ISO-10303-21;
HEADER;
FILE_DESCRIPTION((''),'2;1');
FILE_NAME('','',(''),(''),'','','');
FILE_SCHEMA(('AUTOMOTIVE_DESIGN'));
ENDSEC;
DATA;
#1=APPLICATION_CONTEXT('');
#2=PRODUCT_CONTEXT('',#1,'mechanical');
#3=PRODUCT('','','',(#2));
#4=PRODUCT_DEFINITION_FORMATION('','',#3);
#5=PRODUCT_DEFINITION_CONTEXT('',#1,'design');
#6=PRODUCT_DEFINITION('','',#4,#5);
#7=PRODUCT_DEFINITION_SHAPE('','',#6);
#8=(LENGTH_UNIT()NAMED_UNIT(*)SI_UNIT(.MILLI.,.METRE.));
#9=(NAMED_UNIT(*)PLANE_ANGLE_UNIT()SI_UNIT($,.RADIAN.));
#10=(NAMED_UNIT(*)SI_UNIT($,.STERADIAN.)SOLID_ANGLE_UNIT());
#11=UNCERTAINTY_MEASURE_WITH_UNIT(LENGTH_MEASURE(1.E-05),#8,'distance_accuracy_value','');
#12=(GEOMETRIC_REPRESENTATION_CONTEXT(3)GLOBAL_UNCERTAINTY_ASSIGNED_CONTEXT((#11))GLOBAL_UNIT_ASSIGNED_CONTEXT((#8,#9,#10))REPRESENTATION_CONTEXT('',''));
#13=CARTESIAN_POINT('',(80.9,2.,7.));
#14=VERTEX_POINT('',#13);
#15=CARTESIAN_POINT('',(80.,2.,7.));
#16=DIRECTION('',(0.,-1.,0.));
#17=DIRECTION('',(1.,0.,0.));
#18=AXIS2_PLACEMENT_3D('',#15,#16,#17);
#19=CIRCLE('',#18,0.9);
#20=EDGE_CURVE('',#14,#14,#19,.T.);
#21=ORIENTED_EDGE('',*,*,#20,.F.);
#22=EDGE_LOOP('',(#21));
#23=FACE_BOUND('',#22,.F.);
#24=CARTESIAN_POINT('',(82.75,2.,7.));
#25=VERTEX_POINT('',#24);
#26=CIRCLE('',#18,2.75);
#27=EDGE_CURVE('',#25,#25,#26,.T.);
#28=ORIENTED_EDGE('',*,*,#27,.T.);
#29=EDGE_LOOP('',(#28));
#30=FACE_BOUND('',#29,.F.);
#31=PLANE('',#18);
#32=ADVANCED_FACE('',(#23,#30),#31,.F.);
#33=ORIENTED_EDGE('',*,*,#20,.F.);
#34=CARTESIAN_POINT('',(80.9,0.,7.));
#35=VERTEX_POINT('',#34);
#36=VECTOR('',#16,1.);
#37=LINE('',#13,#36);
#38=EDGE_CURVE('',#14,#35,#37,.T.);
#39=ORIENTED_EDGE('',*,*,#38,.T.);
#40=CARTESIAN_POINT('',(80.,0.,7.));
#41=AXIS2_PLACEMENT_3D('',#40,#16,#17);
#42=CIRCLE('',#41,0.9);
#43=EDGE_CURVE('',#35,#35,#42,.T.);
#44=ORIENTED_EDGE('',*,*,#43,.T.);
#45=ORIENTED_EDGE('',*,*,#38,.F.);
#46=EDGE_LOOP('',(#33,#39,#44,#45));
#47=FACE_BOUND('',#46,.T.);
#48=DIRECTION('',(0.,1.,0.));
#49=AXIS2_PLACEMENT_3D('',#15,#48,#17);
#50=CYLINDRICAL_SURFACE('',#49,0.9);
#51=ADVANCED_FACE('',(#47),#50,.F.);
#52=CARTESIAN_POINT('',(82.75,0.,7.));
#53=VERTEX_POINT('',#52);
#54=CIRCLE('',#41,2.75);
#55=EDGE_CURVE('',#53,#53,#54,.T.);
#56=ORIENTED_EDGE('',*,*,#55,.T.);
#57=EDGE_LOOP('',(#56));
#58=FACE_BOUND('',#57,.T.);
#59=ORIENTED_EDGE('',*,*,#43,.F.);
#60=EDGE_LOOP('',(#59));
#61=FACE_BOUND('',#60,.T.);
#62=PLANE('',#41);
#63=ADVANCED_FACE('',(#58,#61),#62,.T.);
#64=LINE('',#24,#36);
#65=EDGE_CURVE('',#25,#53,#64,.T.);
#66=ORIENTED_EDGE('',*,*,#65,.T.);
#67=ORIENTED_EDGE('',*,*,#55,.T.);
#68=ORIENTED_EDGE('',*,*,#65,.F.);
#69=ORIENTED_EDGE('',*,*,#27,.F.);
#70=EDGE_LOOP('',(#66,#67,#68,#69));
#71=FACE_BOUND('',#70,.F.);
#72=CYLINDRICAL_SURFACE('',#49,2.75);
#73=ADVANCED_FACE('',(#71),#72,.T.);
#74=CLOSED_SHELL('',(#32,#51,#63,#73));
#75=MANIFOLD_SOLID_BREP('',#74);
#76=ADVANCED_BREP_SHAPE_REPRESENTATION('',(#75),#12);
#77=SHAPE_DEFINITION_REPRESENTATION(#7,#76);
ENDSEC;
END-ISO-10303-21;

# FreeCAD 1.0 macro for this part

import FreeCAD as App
import Part
import Sketcher
from FreeCAD import Vector

doc = App.newDocument("Part")
body = doc.addObject("PartDesign::Body", "Body")

# Sketch on XY plane
sketch1 = doc.addObject("Sketcher::SketchObject", "Sketch")
body.addObject(sketch1)
sketch1.AttachmentSupport = (doc.XY_Plane, [""])
sketch1.MapMode = "FlatFace"
sketch1.addGeometry(Part.Circle(Vector(0, 0, 0), Vector(0, 0, 1), 0.9), False)
sketch1.addConstraint(Sketcher.Constraint("Coincident", 0, 3, -1, 1))
sketch1.addConstraint(Sketcher.Constraint("Diameter", 0, 1.8))
pad1 = doc.addObject("PartDesign::Pad", "Pad")
body.addObject(pad1)
pad1.Profile = sketch1
pad1.Length = 2
body2 = doc.addObject("PartDesign::Body", "Body001")

# Sketch on XY plane
sketch2 = doc.addObject("Sketcher::SketchObject", "Sketch001")
body2.addObject(sketch2)
sketch2.AttachmentSupport = (doc.getObject("XY_Plane001"), [""])
sketch2.MapMode = "FlatFace"
sketch2.addGeometry(Part.Circle(Vector(0, 0, 0), Vector(0, 0, 1), 2.75), False)
sketch2.addConstraint(Sketcher.Constraint("Coincident", 0, 3, -1, 1))
sketch2.addConstraint(Sketcher.Constraint("Diameter", 0, 5.5))
pad2 = doc.addObject("PartDesign::Pad", "Pad001")
body2.addObject(pad2)
pad2.Profile = sketch2
pad2.Length = 2
doc.recompute()

boolean = doc.addObject("PartDesign::Boolean", "Boolean")
body2.addObject(boolean)
boolean.Type = "Cut"
boolean.addObjects([body])
body3 = doc.addObject("PartDesign::Body", "Body002")
doc.recompute()

body2.Placement = App.Placement(Vector(80, 2, 7), App.Rotation(Vector(1, 0, 0), 90))
boolean2 = doc.addObject("PartDesign::Boolean", "Boolean001")
body3.addObject(boolean2)
boolean2.Type = "Fuse"
boolean2.addObjects([body2])

doc.recompute()
